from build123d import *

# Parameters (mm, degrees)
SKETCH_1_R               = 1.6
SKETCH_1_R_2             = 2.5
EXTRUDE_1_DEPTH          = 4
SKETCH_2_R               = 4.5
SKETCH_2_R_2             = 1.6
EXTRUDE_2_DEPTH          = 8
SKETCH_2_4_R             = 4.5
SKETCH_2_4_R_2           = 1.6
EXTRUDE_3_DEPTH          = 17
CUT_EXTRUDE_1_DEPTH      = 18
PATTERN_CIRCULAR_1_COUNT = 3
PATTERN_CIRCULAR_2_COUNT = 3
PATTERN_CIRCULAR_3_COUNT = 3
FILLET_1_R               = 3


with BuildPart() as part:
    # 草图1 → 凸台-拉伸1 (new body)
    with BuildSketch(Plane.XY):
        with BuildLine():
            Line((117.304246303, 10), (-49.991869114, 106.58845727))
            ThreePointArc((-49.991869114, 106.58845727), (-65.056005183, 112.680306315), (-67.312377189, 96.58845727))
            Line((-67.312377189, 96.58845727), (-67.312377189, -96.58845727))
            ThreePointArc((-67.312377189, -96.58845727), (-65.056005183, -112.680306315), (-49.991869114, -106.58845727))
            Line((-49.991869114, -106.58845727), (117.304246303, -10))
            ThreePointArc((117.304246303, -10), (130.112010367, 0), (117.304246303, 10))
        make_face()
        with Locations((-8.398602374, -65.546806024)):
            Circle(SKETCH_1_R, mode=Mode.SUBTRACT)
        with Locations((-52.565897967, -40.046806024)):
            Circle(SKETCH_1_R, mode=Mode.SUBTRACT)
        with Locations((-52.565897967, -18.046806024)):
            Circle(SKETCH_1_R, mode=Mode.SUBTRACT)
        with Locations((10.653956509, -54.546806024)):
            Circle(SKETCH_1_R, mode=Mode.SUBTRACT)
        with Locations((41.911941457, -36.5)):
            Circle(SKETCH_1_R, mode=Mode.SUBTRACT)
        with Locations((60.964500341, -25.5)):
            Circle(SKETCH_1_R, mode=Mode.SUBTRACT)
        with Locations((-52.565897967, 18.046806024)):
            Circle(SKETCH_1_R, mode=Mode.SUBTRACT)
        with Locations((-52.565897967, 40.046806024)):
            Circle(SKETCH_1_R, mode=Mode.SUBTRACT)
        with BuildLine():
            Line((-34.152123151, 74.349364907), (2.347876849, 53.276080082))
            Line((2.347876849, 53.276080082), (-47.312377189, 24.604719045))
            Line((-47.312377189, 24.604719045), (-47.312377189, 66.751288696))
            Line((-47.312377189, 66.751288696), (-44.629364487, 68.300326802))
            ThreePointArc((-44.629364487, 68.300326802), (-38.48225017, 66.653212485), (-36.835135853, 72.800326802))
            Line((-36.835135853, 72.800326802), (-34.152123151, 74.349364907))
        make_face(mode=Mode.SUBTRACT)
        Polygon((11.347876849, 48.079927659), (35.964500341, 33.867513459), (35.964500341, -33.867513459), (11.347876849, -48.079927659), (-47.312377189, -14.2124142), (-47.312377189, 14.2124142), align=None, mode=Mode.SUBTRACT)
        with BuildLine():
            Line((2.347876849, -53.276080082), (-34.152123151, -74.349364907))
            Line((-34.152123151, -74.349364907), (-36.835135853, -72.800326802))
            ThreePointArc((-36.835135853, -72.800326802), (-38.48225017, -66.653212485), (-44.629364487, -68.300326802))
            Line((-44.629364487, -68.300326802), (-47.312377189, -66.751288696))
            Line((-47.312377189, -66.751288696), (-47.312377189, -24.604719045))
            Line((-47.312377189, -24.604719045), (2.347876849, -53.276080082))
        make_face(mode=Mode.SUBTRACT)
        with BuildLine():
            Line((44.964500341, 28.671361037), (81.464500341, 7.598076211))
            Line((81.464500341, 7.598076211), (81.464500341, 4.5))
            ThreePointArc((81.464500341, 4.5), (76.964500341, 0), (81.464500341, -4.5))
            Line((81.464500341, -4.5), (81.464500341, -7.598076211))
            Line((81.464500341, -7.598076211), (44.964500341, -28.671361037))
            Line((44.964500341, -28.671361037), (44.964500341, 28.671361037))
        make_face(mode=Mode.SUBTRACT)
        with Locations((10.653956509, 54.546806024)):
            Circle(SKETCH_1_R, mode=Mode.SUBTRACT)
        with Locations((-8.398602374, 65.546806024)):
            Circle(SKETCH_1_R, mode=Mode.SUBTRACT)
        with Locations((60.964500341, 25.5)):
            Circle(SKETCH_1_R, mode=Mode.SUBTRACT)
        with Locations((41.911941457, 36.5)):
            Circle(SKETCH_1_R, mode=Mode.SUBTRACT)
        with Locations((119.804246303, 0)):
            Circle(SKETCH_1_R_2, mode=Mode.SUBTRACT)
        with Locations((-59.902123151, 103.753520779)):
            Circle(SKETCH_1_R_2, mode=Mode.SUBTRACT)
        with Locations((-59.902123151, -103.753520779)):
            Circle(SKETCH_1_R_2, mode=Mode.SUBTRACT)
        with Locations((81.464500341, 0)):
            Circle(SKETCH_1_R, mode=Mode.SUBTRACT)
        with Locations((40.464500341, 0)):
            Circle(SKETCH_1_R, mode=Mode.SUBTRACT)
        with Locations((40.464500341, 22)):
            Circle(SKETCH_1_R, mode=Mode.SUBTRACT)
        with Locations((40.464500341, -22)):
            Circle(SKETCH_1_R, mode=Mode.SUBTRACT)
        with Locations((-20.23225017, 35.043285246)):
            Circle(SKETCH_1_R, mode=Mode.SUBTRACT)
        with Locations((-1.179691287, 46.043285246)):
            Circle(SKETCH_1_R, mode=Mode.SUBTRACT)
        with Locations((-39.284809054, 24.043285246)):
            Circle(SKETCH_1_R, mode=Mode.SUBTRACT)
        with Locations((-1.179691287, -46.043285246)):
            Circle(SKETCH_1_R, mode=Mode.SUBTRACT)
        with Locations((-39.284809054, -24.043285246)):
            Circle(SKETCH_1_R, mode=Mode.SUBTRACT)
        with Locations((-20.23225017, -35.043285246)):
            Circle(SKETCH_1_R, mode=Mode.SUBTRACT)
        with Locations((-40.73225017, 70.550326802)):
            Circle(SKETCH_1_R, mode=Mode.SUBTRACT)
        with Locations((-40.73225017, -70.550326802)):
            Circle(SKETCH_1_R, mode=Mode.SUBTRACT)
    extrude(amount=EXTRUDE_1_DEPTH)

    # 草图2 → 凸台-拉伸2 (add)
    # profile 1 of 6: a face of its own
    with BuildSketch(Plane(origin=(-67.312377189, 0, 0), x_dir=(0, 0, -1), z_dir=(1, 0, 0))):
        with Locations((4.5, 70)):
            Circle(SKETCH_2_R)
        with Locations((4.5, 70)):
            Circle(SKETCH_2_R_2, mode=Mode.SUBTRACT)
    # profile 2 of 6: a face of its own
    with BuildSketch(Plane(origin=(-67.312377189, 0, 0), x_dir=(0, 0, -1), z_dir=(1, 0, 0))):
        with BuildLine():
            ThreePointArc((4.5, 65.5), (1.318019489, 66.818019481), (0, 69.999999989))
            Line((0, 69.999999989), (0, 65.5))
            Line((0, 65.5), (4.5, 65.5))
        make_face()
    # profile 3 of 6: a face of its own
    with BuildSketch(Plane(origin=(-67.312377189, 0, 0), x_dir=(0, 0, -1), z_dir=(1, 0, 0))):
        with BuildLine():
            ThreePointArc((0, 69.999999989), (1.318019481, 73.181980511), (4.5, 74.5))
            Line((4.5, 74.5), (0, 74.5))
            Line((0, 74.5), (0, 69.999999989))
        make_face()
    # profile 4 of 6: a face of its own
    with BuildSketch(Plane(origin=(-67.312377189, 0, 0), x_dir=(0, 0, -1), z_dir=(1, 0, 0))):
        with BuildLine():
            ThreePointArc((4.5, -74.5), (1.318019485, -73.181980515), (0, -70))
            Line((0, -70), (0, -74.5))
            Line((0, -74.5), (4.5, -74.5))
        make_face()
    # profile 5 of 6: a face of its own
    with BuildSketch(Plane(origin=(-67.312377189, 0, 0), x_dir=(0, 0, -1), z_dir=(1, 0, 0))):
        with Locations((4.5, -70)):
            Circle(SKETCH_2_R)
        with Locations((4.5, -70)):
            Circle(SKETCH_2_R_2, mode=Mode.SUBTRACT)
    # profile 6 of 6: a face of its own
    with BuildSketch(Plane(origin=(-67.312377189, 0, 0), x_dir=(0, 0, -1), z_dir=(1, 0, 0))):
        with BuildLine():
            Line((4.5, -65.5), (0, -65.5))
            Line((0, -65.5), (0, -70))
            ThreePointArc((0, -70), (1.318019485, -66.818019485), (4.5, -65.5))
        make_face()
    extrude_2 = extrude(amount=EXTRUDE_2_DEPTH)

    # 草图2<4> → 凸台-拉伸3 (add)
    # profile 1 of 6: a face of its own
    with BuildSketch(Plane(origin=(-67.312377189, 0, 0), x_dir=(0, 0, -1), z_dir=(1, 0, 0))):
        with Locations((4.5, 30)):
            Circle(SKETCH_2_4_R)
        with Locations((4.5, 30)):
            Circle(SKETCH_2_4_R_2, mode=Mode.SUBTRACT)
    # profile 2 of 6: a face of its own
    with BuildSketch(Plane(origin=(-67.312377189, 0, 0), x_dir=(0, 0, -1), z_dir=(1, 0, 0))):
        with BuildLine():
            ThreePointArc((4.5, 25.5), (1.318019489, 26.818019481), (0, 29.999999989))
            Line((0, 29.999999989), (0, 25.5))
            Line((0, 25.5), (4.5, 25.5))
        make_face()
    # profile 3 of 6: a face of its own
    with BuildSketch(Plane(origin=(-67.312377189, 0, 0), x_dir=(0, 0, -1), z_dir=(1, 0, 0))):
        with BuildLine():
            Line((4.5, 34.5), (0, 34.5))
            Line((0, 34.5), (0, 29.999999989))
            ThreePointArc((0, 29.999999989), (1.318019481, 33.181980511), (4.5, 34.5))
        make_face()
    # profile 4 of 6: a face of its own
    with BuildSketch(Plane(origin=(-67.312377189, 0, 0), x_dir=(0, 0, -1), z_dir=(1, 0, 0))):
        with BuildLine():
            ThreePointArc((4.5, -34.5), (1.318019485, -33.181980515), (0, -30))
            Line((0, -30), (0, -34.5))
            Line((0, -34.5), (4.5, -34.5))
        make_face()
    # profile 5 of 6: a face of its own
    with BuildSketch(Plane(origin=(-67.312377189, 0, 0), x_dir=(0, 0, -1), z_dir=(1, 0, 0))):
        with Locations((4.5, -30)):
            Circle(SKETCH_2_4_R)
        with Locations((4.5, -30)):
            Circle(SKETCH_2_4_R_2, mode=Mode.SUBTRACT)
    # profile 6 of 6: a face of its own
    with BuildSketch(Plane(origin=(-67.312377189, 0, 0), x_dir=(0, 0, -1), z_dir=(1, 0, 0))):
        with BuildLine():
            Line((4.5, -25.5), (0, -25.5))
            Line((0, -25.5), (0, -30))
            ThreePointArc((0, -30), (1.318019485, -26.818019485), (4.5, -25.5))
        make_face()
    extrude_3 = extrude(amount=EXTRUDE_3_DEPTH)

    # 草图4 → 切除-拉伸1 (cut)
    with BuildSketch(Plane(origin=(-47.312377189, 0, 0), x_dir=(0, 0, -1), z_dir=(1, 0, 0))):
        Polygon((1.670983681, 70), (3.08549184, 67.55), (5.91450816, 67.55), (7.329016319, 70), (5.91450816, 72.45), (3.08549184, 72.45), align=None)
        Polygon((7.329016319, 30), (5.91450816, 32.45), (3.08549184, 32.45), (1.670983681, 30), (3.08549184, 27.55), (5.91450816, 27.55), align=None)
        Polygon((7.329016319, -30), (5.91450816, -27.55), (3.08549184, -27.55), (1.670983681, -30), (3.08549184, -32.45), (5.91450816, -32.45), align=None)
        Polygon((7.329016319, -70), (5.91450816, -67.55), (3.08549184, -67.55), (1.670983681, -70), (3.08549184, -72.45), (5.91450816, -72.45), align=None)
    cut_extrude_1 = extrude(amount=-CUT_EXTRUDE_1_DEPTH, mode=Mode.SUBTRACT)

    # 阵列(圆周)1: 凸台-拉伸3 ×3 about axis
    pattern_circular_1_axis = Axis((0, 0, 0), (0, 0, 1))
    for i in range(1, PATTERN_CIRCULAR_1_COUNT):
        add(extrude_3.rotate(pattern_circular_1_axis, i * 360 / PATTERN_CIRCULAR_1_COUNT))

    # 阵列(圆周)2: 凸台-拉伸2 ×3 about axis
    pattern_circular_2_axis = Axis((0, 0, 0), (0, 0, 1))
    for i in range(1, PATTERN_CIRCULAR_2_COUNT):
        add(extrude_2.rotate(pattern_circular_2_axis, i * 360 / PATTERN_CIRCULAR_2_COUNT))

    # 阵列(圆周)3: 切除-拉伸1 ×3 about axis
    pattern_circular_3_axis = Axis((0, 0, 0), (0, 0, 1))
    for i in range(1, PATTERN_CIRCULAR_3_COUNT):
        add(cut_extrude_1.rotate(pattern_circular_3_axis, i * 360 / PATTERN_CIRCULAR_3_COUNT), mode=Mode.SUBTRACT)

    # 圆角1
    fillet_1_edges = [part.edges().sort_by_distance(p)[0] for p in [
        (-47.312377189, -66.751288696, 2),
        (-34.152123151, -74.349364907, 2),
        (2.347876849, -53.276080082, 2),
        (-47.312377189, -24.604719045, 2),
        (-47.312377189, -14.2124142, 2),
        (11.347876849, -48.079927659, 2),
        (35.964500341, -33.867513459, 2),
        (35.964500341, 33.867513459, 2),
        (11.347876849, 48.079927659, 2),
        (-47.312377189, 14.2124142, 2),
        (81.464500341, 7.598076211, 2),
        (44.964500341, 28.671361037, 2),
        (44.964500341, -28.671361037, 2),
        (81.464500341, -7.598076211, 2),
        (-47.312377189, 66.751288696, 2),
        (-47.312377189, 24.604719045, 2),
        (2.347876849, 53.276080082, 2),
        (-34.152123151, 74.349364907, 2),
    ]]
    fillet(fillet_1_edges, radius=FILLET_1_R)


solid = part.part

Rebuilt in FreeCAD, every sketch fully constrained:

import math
import FreeCAD as App
import Part
import Sketcher

V = App.Vector
Q = App.Units.Quantity


def edges_at(feature, points):
    """Names of the edges that pass closest to the given points."""
    edges = feature.Shape.Edges
    near = lambda p: min(range(len(edges)), key=lambda i: edges[i].distToShape(Part.Vertex(*p))[0])
    return sorted({f"Edge{near(p) + 1}" for p in points})

doc = App.newDocument("Part")
body = doc.addObject("PartDesign::Body", "Body")

# Sketch on XY plane
sketch1 = body.newObject("Sketcher::SketchObject", "Sketch")
sketch1.AttachmentSupport = (doc.getObject("XY_Plane"), [""])
sketch1.MapMode = "FlatFace"
sketch1.addGeometry([
    Part.LineSegment(V(117.3, 10, 0), V(-50, 106.6, 0)),  # 0
    Part.ArcOfCircle(Part.Circle(V(-59.9, 103.8, 0), V(0, 0, 1), 10.3), math.radians(16), math.radians(224)),  # 1
    Part.LineSegment(V(-67.3, 96.6, 0), V(-67.3, -96.6, 0)),  # 2
    Part.ArcOfCircle(Part.Circle(V(-59.9, -103.8, 0), V(0, 0, 1), 10.3), math.radians(136), math.radians(344)),  # 3
    Part.LineSegment(V(-50, -106.6, 0), V(117.3, -10, 0)),  # 4
    Part.ArcOfCircle(Part.Circle(V(119.8, 0, 0), V(0, 0, 1), 10.3), math.radians(-104), math.radians(104)),  # 5
    Part.Circle(V(-59.9, -103.8, 0), V(0, 0, 1), 2.5),  # 6
    Part.Circle(V(-40.7, -70.6, 0), V(0, 0, 1), 1.6),  # 7
    Part.Circle(V(-8.4, -65.5, 0), V(0, 0, 1), 1.6),  # 8
    Part.Circle(V(10.7, -54.5, 0), V(0, 0, 1), 1.6),  # 9
    Part.Circle(V(-52.6, -40, 0), V(0, 0, 1), 1.6),  # 10
    Part.LineSegment(V(-47.3, -24.6, 0), V(2.3, -53.3, 0)),  # 11
    Part.LineSegment(V(2.3, -53.3, 0), V(-34.2, -74.3, 0)),  # 12
    Part.LineSegment(V(-34.2, -74.3, 0), V(-36.8, -72.8, 0)),  # 13
    Part.ArcOfCircle(Part.Circle(V(-40.7, -70.6, 0), V(0, 0, 1), 4.5), math.radians(-30), math.radians(150)),  # 14
    Part.LineSegment(V(-44.6, -68.3, 0), V(-47.3, -66.8, 0)),  # 15
    Part.LineSegment(V(-47.3, -66.8, 0), V(-47.3, -24.6, 0)),  # 16
    Part.Circle(V(-20.2, -35, 0), V(0, 0, 1), 1.6),  # 17
    Part.Circle(V(-52.6, -18, 0), V(0, 0, 1), 1.6),  # 18
    Part.Circle(V(-39.3, -24, 0), V(0, 0, 1), 1.6),  # 19
    Part.Circle(V(-1.2, -46, 0), V(0, 0, 1), 1.6),  # 20
    Part.Circle(V(41.9, -36.5, 0), V(0, 0, 1), 1.6),  # 21
    Part.Circle(V(40.5, -22, 0), V(0, 0, 1), 1.6),  # 22
    Part.Circle(V(61, -25.5, 0), V(0, 0, 1), 1.6),  # 23
    Part.Circle(V(-52.6, 18, 0), V(0, 0, 1), 1.6),  # 24
    Part.Circle(V(-39.3, 24, 0), V(0, 0, 1), 1.6),  # 25
    Part.Circle(V(-52.6, 40, 0), V(0, 0, 1), 1.6),  # 26
    Part.Circle(V(-20.2, 35, 0), V(0, 0, 1), 1.6),  # 27
    Part.LineSegment(V(-36.8, 72.8, 0), V(-34.2, 74.3, 0)),  # 28
    Part.LineSegment(V(-34.2, 74.3, 0), V(2.3, 53.3, 0)),  # 29
    Part.LineSegment(V(2.3, 53.3, 0), V(-47.3, 24.6, 0)),  # 30
    Part.LineSegment(V(-47.3, 24.6, 0), V(-47.3, 66.8, 0)),  # 31
    Part.LineSegment(V(-47.3, 66.8, 0), V(-44.6, 68.3, 0)),  # 32
    Part.ArcOfCircle(Part.Circle(V(-40.7, 70.6, 0), V(0, 0, 1), 4.5), math.radians(-150), math.radians(30)),  # 33
    Part.LineSegment(V(-47.3, 14.2, 0), V(11.3, 48.1, 0)),  # 34
    Part.LineSegment(V(11.3, 48.1, 0), V(36, 33.9, 0)),  # 35
    Part.LineSegment(V(36, 33.9, 0), V(36, -33.9, 0)),  # 36
    Part.LineSegment(V(36, -33.9, 0), V(11.3, -48.1, 0)),  # 37
    Part.LineSegment(V(11.3, -48.1, 0), V(-47.3, -14.2, 0)),  # 38
    Part.LineSegment(V(-47.3, -14.2, 0), V(-47.3, 14.2, 0)),  # 39
    Part.Circle(V(-1.2, 46, 0), V(0, 0, 1), 1.6),  # 40
    Part.Circle(V(-40.7, 70.6, 0), V(0, 0, 1), 1.6),  # 41
    Part.Circle(V(-59.9, 103.8, 0), V(0, 0, 1), 2.5),  # 42
    Part.Circle(V(-8.4, 65.5, 0), V(0, 0, 1), 1.6),  # 43
    Part.Circle(V(10.7, 54.5, 0), V(0, 0, 1), 1.6),  # 44
    Part.Circle(V(40.5, 0, 0), V(0, 0, 1), 1.6),  # 45
    Part.Circle(V(40.5, 22, 0), V(0, 0, 1), 1.6),  # 46
    Part.LineSegment(V(45, -28.7, 0), V(45, 28.7, 0)),  # 47
    Part.LineSegment(V(45, 28.7, 0), V(81.5, 7.6, 0)),  # 48
    Part.LineSegment(V(81.5, 7.6, 0), V(81.5, 4.5, 0)),  # 49
    Part.ArcOfCircle(Part.Circle(V(81.5, 0, 0), V(0, 0, 1), 4.5), math.radians(90), math.radians(270)),  # 50
    Part.LineSegment(V(81.5, -4.5, 0), V(81.5, -7.6, 0)),  # 51
    Part.LineSegment(V(81.5, -7.6, 0), V(45, -28.7, 0)),  # 52
    Part.Circle(V(61, 25.5, 0), V(0, 0, 1), 1.6),  # 53
    Part.Circle(V(41.9, 36.5, 0), V(0, 0, 1), 1.6),  # 54
    Part.Circle(V(81.5, 0, 0), V(0, 0, 1), 1.6),  # 55
    Part.Circle(V(119.8, 0, 0), V(0, 0, 1), 2.5),  # 56
], False)
sketch1.addConstraint([
    Sketcher.Constraint("Coincident", 0, 2, 1, 1),
    Sketcher.Constraint("Coincident", 1, 2, 2, 1),
    Sketcher.Constraint("Coincident", 2, 2, 3, 1),
    Sketcher.Constraint("Coincident", 3, 2, 4, 1),
    Sketcher.Constraint("Coincident", 4, 2, 5, 1),
    Sketcher.Constraint("Coincident", 5, 2, 0, 1),
    Sketcher.Constraint("Coincident", 11, 2, 12, 1),
    Sketcher.Constraint("Coincident", 12, 2, 13, 1),
    Sketcher.Constraint("Coincident", 13, 2, 14, 1),
    Sketcher.Constraint("Coincident", 14, 2, 15, 1),
    Sketcher.Constraint("Coincident", 15, 2, 16, 1),
    Sketcher.Constraint("Coincident", 16, 2, 11, 1),
    Sketcher.Constraint("Coincident", 28, 2, 29, 1),
    Sketcher.Constraint("Coincident", 29, 2, 30, 1),
    Sketcher.Constraint("Coincident", 30, 2, 31, 1),
    Sketcher.Constraint("Coincident", 31, 2, 32, 1),
    Sketcher.Constraint("Coincident", 32, 2, 33, 1),
    Sketcher.Constraint("Coincident", 33, 2, 28, 1),
    Sketcher.Constraint("Coincident", 34, 2, 35, 1),
    Sketcher.Constraint("Coincident", 35, 2, 36, 1),
    Sketcher.Constraint("Coincident", 36, 2, 37, 1),
    Sketcher.Constraint("Coincident", 37, 2, 38, 1),
    Sketcher.Constraint("Coincident", 38, 2, 39, 1),
    Sketcher.Constraint("Coincident", 39, 2, 34, 1),
    Sketcher.Constraint("Coincident", 47, 2, 48, 1),
    Sketcher.Constraint("Coincident", 48, 2, 49, 1),
    Sketcher.Constraint("Coincident", 49, 2, 50, 1),
    Sketcher.Constraint("Coincident", 50, 2, 51, 1),
    Sketcher.Constraint("Coincident", 51, 2, 52, 1),
    Sketcher.Constraint("Coincident", 52, 2, 47, 1),
    Sketcher.Constraint("Vertical", 2),
    Sketcher.Constraint("Vertical", 16),
    Sketcher.Constraint("Vertical", 31),
    Sketcher.Constraint("Vertical", 36),
    Sketcher.Constraint("Vertical", 39),
    Sketcher.Constraint("Vertical", 47),
    Sketcher.Constraint("Vertical", 49),
    Sketcher.Constraint("Vertical", 51),
    Sketcher.Constraint("Coincident", 6, 3, 3, 3),
    Sketcher.Constraint("Coincident", 14, 3, 7, 3),
    Sketcher.Constraint("Coincident", 41, 3, 33, 3),
    Sketcher.Constraint("Coincident", 42, 3, 1, 3),
    Sketcher.Constraint("Coincident", 55, 3, 50, 3),
    Sketcher.Constraint("Coincident", 56, 3, 5, 3),
    Sketcher.Constraint("Equal", 1, 3),
    Sketcher.Constraint("Equal", 3, 5),
    Sketcher.Constraint("Equal", 7, 8),
    Sketcher.Constraint("Equal", 8, 9),
    Sketcher.Constraint("Equal", 9, 10),
    Sketcher.Constraint("Equal", 10, 17),
    Sketcher.Constraint("Equal", 17, 18),
    Sketcher.Constraint("Equal", 18, 19),
    Sketcher.Constraint("Equal", 19, 20),
    Sketcher.Constraint("Equal", 20, 21),
    Sketcher.Constraint("Equal", 21, 22),
    Sketcher.Constraint("Equal", 22, 23),
    Sketcher.Constraint("Equal", 23, 24),
    Sketcher.Constraint("Equal", 24, 25),
    Sketcher.Constraint("Equal", 25, 26),
    Sketcher.Constraint("Equal", 26, 27),
    Sketcher.Constraint("Equal", 14, 33),
    Sketcher.Constraint("Equal", 27, 40),
    Sketcher.Constraint("Equal", 40, 41),
    Sketcher.Constraint("Equal", 6, 42),
    Sketcher.Constraint("Equal", 41, 43),
    Sketcher.Constraint("Equal", 43, 44),
    Sketcher.Constraint("Equal", 44, 45),
    Sketcher.Constraint("Equal", 45, 46),
    Sketcher.Constraint("Equal", 33, 50),
    Sketcher.Constraint("Equal", 46, 53),
    Sketcher.Constraint("Equal", 53, 54),
    Sketcher.Constraint("Equal", 54, 55),
    Sketcher.Constraint("Equal", 42, 56),
    Sketcher.Constraint("Symmetric", 1, 3, 3, 3, -1),
    Sketcher.Constraint("Symmetric", 18, 3, 24, 3, -1),
    Sketcher.Constraint("Symmetric", 19, 3, 25, 3, -1),
    Sketcher.Constraint("Symmetric", 10, 3, 26, 3, -1),
    Sketcher.Constraint("Symmetric", 17, 3, 27, 3, -1),
    Sketcher.Constraint("Symmetric", 7, 3, 33, 3, -1),
    Sketcher.Constraint("Symmetric", 20, 3, 40, 3, -1),
    Sketcher.Constraint("Symmetric", 8, 3, 43, 3, -1),
    Sketcher.Constraint("Symmetric", 9, 3, 44, 3, -1),
    Sketcher.Constraint("Symmetric", 22, 3, 46, 3, -1),
    Sketcher.Constraint("Symmetric", 23, 3, 53, 3, -1),
    Sketcher.Constraint("Symmetric", 21, 3, 54, 3, -1),
    Sketcher.Constraint("Symmetric", 4, 2, 5, 2, -1),
    Sketcher.Constraint("Symmetric", 12, 2, 28, 2, -1),
    Sketcher.Constraint("Symmetric", 11, 2, 29, 2, -1),
    Sketcher.Constraint("Symmetric", 16, 2, 30, 2, -1),
    Sketcher.Constraint("Symmetric", 34, 2, 37, 2, -1),
    Sketcher.Constraint("Symmetric", 49, 2, 50, 2, -1),
    Sketcher.Constraint("PointOnObject", 45, 3, -1),
    Sketcher.Constraint("Parallel", 0, 11),
    Sketcher.Constraint("Parallel", 4, 12),
    Sketcher.Constraint("Parallel", 11, 13),
    Sketcher.Constraint("Parallel", 13, 15),
    Sketcher.Constraint("Parallel", 12, 28),
    Sketcher.Constraint("Parallel", 15, 29),
    Sketcher.Constraint("Parallel", 30, 32),
    Sketcher.Constraint("Parallel", 32, 34),
    Sketcher.Constraint("Parallel", 29, 35),
    Sketcher.Constraint("Parallel", 34, 37),
    Sketcher.Constraint("Parallel", 35, 38),
    Sketcher.Constraint("Parallel", 38, 48),
    Sketcher.Constraint("Parallel", 37, 52),
    Sketcher.Constraint("Vertical", 10, 3, 18, 3),
    Sketcher.Constraint("Vertical", 22, 3, 45, 3),
    Sketcher.Constraint("Vertical", 14, 2, 32, 2),
    Sketcher.Constraint("Vertical", 31, 2, 38, 2),
    Sketcher.Constraint("Vertical", 55, 3, 48, 2),
    Sketcher.Constraint("Equal", 49, 51),
    Sketcher.Constraint("Equal", 13, 15),
    Sketcher.Constraint("Equal", 29, 48),
    Sketcher.Constraint("Diameter", 6, 5.0),
    Sketcher.Constraint("Diameter", 7, 3.2),
    Sketcher.Constraint("Radius", 14, 4.5),
    Sketcher.Constraint("Angle", 0, Q("150 deg")),
    Sketcher.Constraint("DistanceY", 22, 3, -1, 1, 22.0),
    Sketcher.Constraint("DistanceY", 4, 2, -1, 1, 10.0),
    Sketcher.Constraint("DistanceY", 21, 3, -1, 1, 36.5),
    Sketcher.Constraint("DistanceY", 23, 3, -1, 1, 25.5),
    Sketcher.Constraint("Radius", 1, 10.307764),
    Sketcher.Constraint("DistanceY", 16, 1, 16, 2, 42.14657),
    Sketcher.Constraint("DistanceY", 39, 1, 39, 2, 28.424828),
    Sketcher.Constraint("DistanceX", -1, 1, 22, 3, 40.4645),
    Sketcher.Constraint("DistanceX", -1, 1, 23, 3, 60.9645),
    Sketcher.Constraint("DistanceX", -1, 1, 50, 3, 81.4645),
    Sketcher.Constraint("DistanceX", -1, 1, 35, 2, 35.9645),
    Sketcher.Constraint("DistanceX", -1, 1, 47, 2, 44.9645),
    Sketcher.Constraint("Distance", 35, 28.424828),
    Sketcher.Constraint("DistanceY", 2, 2, 2, 1, 193.176915),
    Sketcher.Constraint("DistanceY", 36, 2, 36, 1, 67.735027),
    Sketcher.Constraint("DistanceY", 47, 1, 47, 2, 57.342722),
    Sketcher.Constraint("DistanceY", -1, 1, 1, 3, 103.753521),
    Sketcher.Constraint("DistanceX", 7, 3, -1, 1, 40.73225),
    Sketcher.Constraint("DistanceX", 17, 3, -1, 1, 20.23225),
    Sketcher.Constraint("DistanceX", 19, 3, -1, 1, 39.284809),
    Sketcher.Constraint("DistanceX", 20, 3, -1, 1, 1.179691),
    Sketcher.Constraint("DistanceX", -1, 1, 21, 3, 41.911941),
    Sketcher.Constraint("DistanceX", 0, 2, -1, 1, 49.991869),
    Sketcher.Constraint("DistanceY", 11, 2, -1, 1, 53.27608),
    Sketcher.Constraint("DistanceY", 15, 2, -1, 1, 66.751289),
    Sketcher.Constraint("Distance", 0, 193.176915),
    Sketcher.Constraint("DistanceX", 8, 3, -1, 1, 8.398602),
    Sketcher.Constraint("DistanceY", 8, 3, -1, 1, 65.546806),
    Sketcher.Constraint("DistanceX", -1, 1, 9, 3, 10.653957),
    Sketcher.Constraint("DistanceY", 9, 3, -1, 1, 54.546806),
    Sketcher.Constraint("DistanceX", 10, 3, -1, 1, 52.565898),
    Sketcher.Constraint("DistanceY", 10, 3, -1, 1, 40.046806),
    Sketcher.Constraint("DistanceY", 17, 3, -1, 1, 35.043285),
    Sketcher.Constraint("DistanceY", 18, 3, -1, 1, 18.046806),
    Sketcher.Constraint("DistanceY", 19, 3, -1, 1, 24.043285),
    Sketcher.Constraint("DistanceY", 20, 3, -1, 1, 46.043285),
])
pad1 = body.newObject("PartDesign::Pad", "Pad")
pad1.Profile = sketch1
pad1.Length = 4

# Sketch on YZ plane
sketch2 = body.newObject("Sketcher::SketchObject", "Sketch001")
sketch2.AttachmentSupport = (doc.getObject("YZ_Plane"), [""])
sketch2.MapMode = "FlatFace"
sketch2.AttachmentOffset = App.Placement(V(0, 0, -67.312377), App.Rotation())
sketch2.addGeometry([
    Part.LineSegment(V(74.5, -4.5, 0), V(74.5, 0, 0)),  # 0
    Part.LineSegment(V(74.5, 0, 0), V(65.5, 0, 0)),  # 1
    Part.LineSegment(V(65.5, 0, 0), V(65.5, -4.5, 0)),  # 2
    Part.ArcOfCircle(Part.Circle(V(70, -4.5, 0), V(0, 0, 1), 4.5), math.radians(180), math.radians(360)),  # 3
    Part.Circle(V(70, -4.5, 0), V(0, 0, 1), 1.6),  # 4
    Part.LineSegment(V(-74.5, 0, 0), V(-74.5, -4.5, 0)),  # 5
    Part.ArcOfCircle(Part.Circle(V(-70, -4.5, 0), V(0, 0, 1), 4.5), math.radians(180), math.radians(360)),  # 6
    Part.LineSegment(V(-65.5, -4.5, 0), V(-65.5, 0, 0)),  # 7
    Part.LineSegment(V(-65.5, 0, 0), V(-74.5, 0, 0)),  # 8
    Part.Circle(V(-70, -4.5, 0), V(0, 0, 1), 1.6),  # 9
], False)
sketch2.addConstraint([
    Sketcher.Constraint("Coincident", 0, 2, 1, 1),
    Sketcher.Constraint("Coincident", 1, 2, 2, 1),
    Sketcher.Constraint("Tangent", 2, 2, 3, 1),
    Sketcher.Constraint("Tangent", 3, 2, 0, 1),
    Sketcher.Constraint("Tangent", 5, 2, 6, 1),
    Sketcher.Constraint("Tangent", 6, 2, 7, 1),
    Sketcher.Constraint("Coincident", 7, 2, 8, 1),
    Sketcher.Constraint("Coincident", 8, 2, 5, 1),
    Sketcher.Constraint("Vertical", 0),
    Sketcher.Constraint("Horizontal", 1),
    Sketcher.Constraint("Vertical", 2),
    Sketcher.Constraint("Vertical", 5),
    Sketcher.Constraint("Vertical", 7),
    Sketcher.Constraint("Horizontal", 8),
    Sketcher.Constraint("Coincident", 4, 3, 3, 3),
    Sketcher.Constraint("Coincident", 9, 3, 6, 3),
    Sketcher.Constraint("Equal", 3, 6),
    Sketcher.Constraint("Equal", 4, 9),
    Sketcher.Constraint("Symmetric", 1, 2, 7, 2, -1, 1),
    Sketcher.Constraint("PointOnObject", 0, 2, -1),
    Sketcher.Constraint("Horizontal", 4, 3, 6, 3),
    Sketcher.Constraint("Diameter", 4, 3.2),
    Sketcher.Constraint("Radius", 3, 4.5),
    Sketcher.Constraint("DistanceY", 0, 1, 0, 2, 4.5),
    Sketcher.Constraint("DistanceX", -1, 1, 3, 3, 70.0),
])
pad2 = body.newObject("PartDesign::Pad", "Pad001")
pad2.Profile = sketch2
pad2.Length = 8

# Sketch on YZ plane
sketch3 = body.newObject("Sketcher::SketchObject", "Sketch002")
sketch3.AttachmentSupport = (doc.getObject("YZ_Plane"), [""])
sketch3.MapMode = "FlatFace"
sketch3.AttachmentOffset = App.Placement(V(0, 0, -67.312377), App.Rotation())
sketch3.addGeometry([
    Part.LineSegment(V(34.5, -4.5, 0), V(34.5, 0, 0)),  # 0
    Part.LineSegment(V(34.5, 0, 0), V(25.5, 0, 0)),  # 1
    Part.LineSegment(V(25.5, 0, 0), V(25.5, -4.5, 0)),  # 2
    Part.ArcOfCircle(Part.Circle(V(30, -4.5, 0), V(0, 0, 1), 4.5), math.radians(180), math.radians(360)),  # 3
    Part.Circle(V(30, -4.5, 0), V(0, 0, 1), 1.6),  # 4
    Part.LineSegment(V(-34.5, 0, 0), V(-34.5, -4.5, 0)),  # 5
    Part.ArcOfCircle(Part.Circle(V(-30, -4.5, 0), V(0, 0, 1), 4.5), math.radians(180), math.radians(360)),  # 6
    Part.LineSegment(V(-25.5, -4.5, 0), V(-25.5, 0, 0)),  # 7
    Part.LineSegment(V(-25.5, 0, 0), V(-34.5, 0, 0)),  # 8
    Part.Circle(V(-30, -4.5, 0), V(0, 0, 1), 1.6),  # 9
], False)
sketch3.addConstraint([
    Sketcher.Constraint("Coincident", 0, 2, 1, 1),
    Sketcher.Constraint("Coincident", 1, 2, 2, 1),
    Sketcher.Constraint("Tangent", 2, 2, 3, 1),
    Sketcher.Constraint("Tangent", 3, 2, 0, 1),
    Sketcher.Constraint("Tangent", 5, 2, 6, 1),
    Sketcher.Constraint("Tangent", 6, 2, 7, 1),
    Sketcher.Constraint("Coincident", 7, 2, 8, 1),
    Sketcher.Constraint("Coincident", 8, 2, 5, 1),
    Sketcher.Constraint("Vertical", 0),
    Sketcher.Constraint("Horizontal", 1),
    Sketcher.Constraint("Vertical", 2),
    Sketcher.Constraint("Vertical", 5),
    Sketcher.Constraint("Vertical", 7),
    Sketcher.Constraint("Horizontal", 8),
    Sketcher.Constraint("Coincident", 4, 3, 3, 3),
    Sketcher.Constraint("Coincident", 9, 3, 6, 3),
    Sketcher.Constraint("Equal", 3, 6),
    Sketcher.Constraint("Equal", 4, 9),
    Sketcher.Constraint("Symmetric", 1, 2, 7, 2, -1, 1),
    Sketcher.Constraint("PointOnObject", 0, 2, -1),
    Sketcher.Constraint("Horizontal", 4, 3, 6, 3),
    Sketcher.Constraint("Diameter", 4, 3.2),
    Sketcher.Constraint("Radius", 3, 4.5),
    Sketcher.Constraint("DistanceY", 0, 1, 0, 2, 4.5),
    Sketcher.Constraint("DistanceX", -1, 1, 3, 3, 30.0),
])
pad3 = body.newObject("PartDesign::Pad", "Pad002")
pad3.Profile = sketch3
pad3.Length = 17

# Sketch on YZ plane
sketch4 = body.newObject("Sketcher::SketchObject", "Sketch003")
sketch4.AttachmentSupport = (doc.getObject("YZ_Plane"), [""])
sketch4.MapMode = "FlatFace"
sketch4.AttachmentOffset = App.Placement(V(0, 0, -47.312377), App.Rotation())
sketch4.addGeometry([
    Part.LineSegment(V(70, -1.7, 0), V(67.5, -3.1, 0)),  # 0
    Part.LineSegment(V(67.5, -3.1, 0), V(67.5, -5.9, 0)),  # 1
    Part.LineSegment(V(67.5, -5.9, 0), V(70, -7.3, 0)),  # 2
    Part.LineSegment(V(70, -7.3, 0), V(72.5, -5.9, 0)),  # 3
    Part.LineSegment(V(72.5, -5.9, 0), V(72.5, -3.1, 0)),  # 4
    Part.LineSegment(V(72.5, -3.1, 0), V(70, -1.7, 0)),  # 5
    Part.LineSegment(V(30, -7.3, 0), V(32.5, -5.9, 0)),  # 6
    Part.LineSegment(V(32.5, -5.9, 0), V(32.5, -3.1, 0)),  # 7
    Part.LineSegment(V(32.5, -3.1, 0), V(30, -1.7, 0)),  # 8
    Part.LineSegment(V(30, -1.7, 0), V(27.6, -3.1, 0)),  # 9
    Part.LineSegment(V(27.6, -3.1, 0), V(27.6, -5.9, 0)),  # 10
    Part.LineSegment(V(27.6, -5.9, 0), V(30, -7.3, 0)),  # 11
    Part.LineSegment(V(-30, -7.3, 0), V(-27.6, -5.9, 0)),  # 12
    Part.LineSegment(V(-27.6, -5.9, 0), V(-27.6, -3.1, 0)),  # 13
    Part.LineSegment(V(-27.6, -3.1, 0), V(-30, -1.7, 0)),  # 14
    Part.LineSegment(V(-30, -1.7, 0), V(-32.5, -3.1, 0)),  # 15
    Part.LineSegment(V(-32.5, -3.1, 0), V(-32.5, -5.9, 0)),  # 16
    Part.LineSegment(V(-32.5, -5.9, 0), V(-30, -7.3, 0)),  # 17
    Part.LineSegment(V(-70, -7.3, 0), V(-67.5, -5.9, 0)),  # 18
    Part.LineSegment(V(-67.5, -5.9, 0), V(-67.5, -3.1, 0)),  # 19
    Part.LineSegment(V(-67.5, -3.1, 0), V(-70, -1.7, 0)),  # 20
    Part.LineSegment(V(-70, -1.7, 0), V(-72.5, -3.1, 0)),  # 21
    Part.LineSegment(V(-72.5, -3.1, 0), V(-72.5, -5.9, 0)),  # 22
    Part.LineSegment(V(-72.5, -5.9, 0), V(-70, -7.3, 0)),  # 23
], False)
sketch4.addConstraint([
    Sketcher.Constraint("Coincident", 0, 2, 1, 1),
    Sketcher.Constraint("Coincident", 1, 2, 2, 1),
    Sketcher.Constraint("Coincident", 2, 2, 3, 1),
    Sketcher.Constraint("Coincident", 3, 2, 4, 1),
    Sketcher.Constraint("Coincident", 4, 2, 5, 1),
    Sketcher.Constraint("Coincident", 5, 2, 0, 1),
    Sketcher.Constraint("Coincident", 6, 2, 7, 1),
    Sketcher.Constraint("Coincident", 7, 2, 8, 1),
    Sketcher.Constraint("Coincident", 8, 2, 9, 1),
    Sketcher.Constraint("Coincident", 9, 2, 10, 1),
    Sketcher.Constraint("Coincident", 10, 2, 11, 1),
    Sketcher.Constraint("Coincident", 11, 2, 6, 1),
    Sketcher.Constraint("Coincident", 12, 2, 13, 1),
    Sketcher.Constraint("Coincident", 13, 2, 14, 1),
    Sketcher.Constraint("Coincident", 14, 2, 15, 1),
    Sketcher.Constraint("Coincident", 15, 2, 16, 1),
    Sketcher.Constraint("Coincident", 16, 2, 17, 1),
    Sketcher.Constraint("Coincident", 17, 2, 12, 1),
    Sketcher.Constraint("Coincident", 18, 2, 19, 1),
    Sketcher.Constraint("Coincident", 19, 2, 20, 1),
    Sketcher.Constraint("Coincident", 20, 2, 21, 1),
    Sketcher.Constraint("Coincident", 21, 2, 22, 1),
    Sketcher.Constraint("Coincident", 22, 2, 23, 1),
    Sketcher.Constraint("Coincident", 23, 2, 18, 1),
    Sketcher.Constraint("Vertical", 1),
    Sketcher.Constraint("Vertical", 4),
    Sketcher.Constraint("Vertical", 7),
    Sketcher.Constraint("Vertical", 10),
    Sketcher.Constraint("Vertical", 13),
    Sketcher.Constraint("Vertical", 16),
    Sketcher.Constraint("Vertical", 19),
    Sketcher.Constraint("Vertical", 22),
    Sketcher.Constraint("Symmetric", 10, 2, 12, 2, -2),
    Sketcher.Constraint("Symmetric", 8, 2, 14, 2, -2),
    Sketcher.Constraint("Symmetric", 7, 2, 15, 2, -2),
    Sketcher.Constraint("Symmetric", 11, 2, 17, 2, -2),
    Sketcher.Constraint("Symmetric", 1, 2, 18, 2, -2),
    Sketcher.Constraint("Symmetric", 5, 2, 20, 2, -2),
    Sketcher.Constraint("Symmetric", 4, 2, 21, 2, -2),
    Sketcher.Constraint("Symmetric", 2, 2, 23, 2, -2),
    Sketcher.Constraint("Parallel", 0, 3),
    Sketcher.Constraint("Parallel", 2, 5),
    Sketcher.Constraint("Parallel", 3, 6),
    Sketcher.Constraint("Parallel", 5, 8),
    Sketcher.Constraint("Parallel", 6, 9),
    Sketcher.Constraint("Parallel", 8, 11),
    Sketcher.Constraint("Parallel", 9, 12),
    Sketcher.Constraint("Parallel", 11, 14),
    Sketcher.Constraint("Parallel", 14, 17),
    Sketcher.Constraint("Parallel", 17, 20),
    Sketcher.Constraint("Parallel", 20, 23),
    Sketcher.Constraint("Horizontal", 1, 2, 3, 2),
    Sketcher.Constraint("Horizontal", 0, 2, 4, 2),
    Sketcher.Constraint("Horizontal", 3, 2, 6, 2),
    Sketcher.Constraint("Horizontal", 4, 2, 7, 2),
    Sketcher.Constraint("Horizontal", 5, 2, 8, 2),
    Sketcher.Constraint("Horizontal", 7, 2, 9, 2),
    Sketcher.Constraint("Horizontal", 6, 2, 10, 2),
    Sketcher.Constraint("Angle", 0, Q("-150 deg")),
    Sketcher.Constraint("DistanceX", -1, 1, 2, 2, 70.0),
    Sketcher.Constraint("DistanceX", -1, 1, 8, 2, 30.0),
    Sketcher.Constraint("DistanceX", 1, 2, 3, 2, 4.9),
    Sketcher.Constraint("DistanceY", 1, 2, 1, 1, 2.829016),
    Sketcher.Constraint("DistanceY", 0, 2, -1, 1, 3.085492),
])
pocket1 = body.newObject("PartDesign::Pocket", "Pocket")
pocket1.Profile = sketch4
pocket1.Length = 18
doc.recompute()

polarpattern = body.newObject("PartDesign::PolarPattern", "PolarPattern")
polarpattern.Originals = [pad3]
polarpattern.Axis = (doc.getObject("Z_Axis"), [""])
polarpattern.Angle = 360
polarpattern.Occurrences = 3
body.Tip = polarpattern
doc.recompute()

polarpattern2 = body.newObject("PartDesign::PolarPattern", "PolarPattern001")
polarpattern2.Originals = [pad2]
polarpattern2.Axis = (doc.getObject("Z_Axis"), [""])
polarpattern2.Angle = 360
polarpattern2.Occurrences = 3
body.Tip = polarpattern2
doc.recompute()

polarpattern3 = body.newObject("PartDesign::PolarPattern", "PolarPattern002")
polarpattern3.Originals = [pocket1]
polarpattern3.Axis = (doc.getObject("Z_Axis"), [""])
polarpattern3.Angle = 360
polarpattern3.Occurrences = 3
body.Tip = polarpattern3
doc.recompute()

fillet = body.newObject("PartDesign::Fillet", "Fillet")
fillet.Base = (polarpattern3, edges_at(polarpattern3, [
    (-47.312, -66.751, 2),
    (-34.152, -74.349, 2),
    (2.348, -53.276, 2),
    (-47.312, -24.605, 2),
    (-47.312, -14.212, 2),
    (11.348, -48.08, 2),
    (35.965, -33.868, 2),
    (35.965, 33.868, 2),
    (11.348, 48.08, 2),
    (-47.312, 14.212, 2),
    (81.465, 7.598, 2),
    (44.965, 28.671, 2),
    (44.965, -28.671, 2),
    (81.465, -7.598, 2),
    (-47.312, 66.751, 2),
    (-47.312, 24.605, 2),
    (2.348, 53.276, 2),
    (-34.152, 74.349, 2),
]))
fillet.Radius = 3

doc.recompute()
